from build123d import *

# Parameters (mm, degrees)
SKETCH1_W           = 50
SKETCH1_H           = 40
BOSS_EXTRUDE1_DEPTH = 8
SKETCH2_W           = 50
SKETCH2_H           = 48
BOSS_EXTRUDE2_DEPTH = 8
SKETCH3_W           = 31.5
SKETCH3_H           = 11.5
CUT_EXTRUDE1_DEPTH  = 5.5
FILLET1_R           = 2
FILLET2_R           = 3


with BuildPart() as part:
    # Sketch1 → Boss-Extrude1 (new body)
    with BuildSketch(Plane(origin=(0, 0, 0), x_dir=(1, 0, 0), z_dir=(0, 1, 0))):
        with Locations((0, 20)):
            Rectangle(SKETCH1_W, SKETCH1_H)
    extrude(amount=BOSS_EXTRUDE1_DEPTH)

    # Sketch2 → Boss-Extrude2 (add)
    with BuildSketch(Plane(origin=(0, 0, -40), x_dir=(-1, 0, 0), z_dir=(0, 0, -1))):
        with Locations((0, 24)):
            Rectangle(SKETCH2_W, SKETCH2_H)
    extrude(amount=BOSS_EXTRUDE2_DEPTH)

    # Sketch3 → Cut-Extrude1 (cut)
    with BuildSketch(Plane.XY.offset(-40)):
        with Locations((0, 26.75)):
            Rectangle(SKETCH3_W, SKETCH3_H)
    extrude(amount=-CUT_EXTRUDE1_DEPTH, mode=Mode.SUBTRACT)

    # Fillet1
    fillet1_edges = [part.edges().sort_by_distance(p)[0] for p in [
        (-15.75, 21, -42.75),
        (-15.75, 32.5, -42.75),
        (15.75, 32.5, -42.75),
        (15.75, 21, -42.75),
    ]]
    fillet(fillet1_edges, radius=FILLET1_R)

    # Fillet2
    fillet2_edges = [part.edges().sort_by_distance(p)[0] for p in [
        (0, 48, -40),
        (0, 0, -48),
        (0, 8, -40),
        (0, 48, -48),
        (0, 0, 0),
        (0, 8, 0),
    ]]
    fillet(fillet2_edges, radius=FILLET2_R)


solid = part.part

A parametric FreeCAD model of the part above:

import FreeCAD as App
import Part
import Sketcher

V = App.Vector


def edges_at(feature, points):
    """Names of the edges that pass closest to the given points."""
    edges = feature.Shape.Edges
    near = lambda p: min(range(len(edges)), key=lambda i: edges[i].distToShape(Part.Vertex(*p))[0])
    return sorted({f"Edge{near(p) + 1}" for p in points})

doc = App.newDocument("Part")
params = doc.addObject("Spreadsheet::Sheet", "Params")
for row, (alias, value) in enumerate([
    ("sketch1_width", "50 mm"),
    ("sketch1_height", "40 mm"),
    ("pad1_length", "8 mm"),
    ("sketch2_width", "50 mm"),
    ("sketch2_height", "48 mm"),
    ("pad2_length", "8 mm"),
    ("sketch3_width", "31.5 mm"),
    ("sketch3_height", "11.5 mm"),
    ("pocket1_length", "5.5 mm"),
    ("fillet_radius", "2 mm"),
    ("fillet2_radius", "3 mm"),
], start=1):
    params.set(f"A{row}", alias)
    params.set(f"B{row}", "=" + value)
    params.setAlias(f"B{row}", alias)

body = doc.addObject("PartDesign::Body", "Body")

# Sketch on XZ plane
sketch1 = body.newObject("Sketcher::SketchObject", "Sketch")
sketch1.AttachmentSupport = (doc.getObject("XZ_Plane"), [""])
sketch1.MapMode = "FlatFace"
sketch1.addGeometry([
    Part.LineSegment(V(-25, -40, 0), V(-25, 0, 0)),
    Part.LineSegment(V(-25, 0, 0), V(25, 0, 0)),
    Part.LineSegment(V(25, 0, 0), V(25, -40, 0)),
    Part.LineSegment(V(25, -40, 0), V(-25, -40, 0)),
], False)
sketch1.addConstraint([
    Sketcher.Constraint("Coincident", 0, 2, 1, 1),
    Sketcher.Constraint("Coincident", 1, 2, 2, 1),
    Sketcher.Constraint("Coincident", 2, 2, 3, 1),
    Sketcher.Constraint("Coincident", 3, 2, 0, 1),
    Sketcher.Constraint("Vertical", 0),
    Sketcher.Constraint("Horizontal", 1),
    Sketcher.Constraint("Vertical", 2),
    Sketcher.Constraint("Horizontal", 3),
    Sketcher.Constraint("Symmetric", 0, 2, 1, 2, -1, 1),
    Sketcher.Constraint("DistanceX", 1, 1, 1, 2, 50.0),
    Sketcher.Constraint("DistanceY", 0, 1, 0, 2, 40.0),
])
sketch1.setExpression("Constraints[9]", "Params.sketch1_width")
sketch1.setExpression("Constraints[10]", "Params.sketch1_height")
pad1 = body.newObject("PartDesign::Pad", "Pad")
pad1.Profile = sketch1
pad1.setExpression("Length", "Params.pad1_length")
pad1.Reversed = True

# Sketch on XY plane
sketch2 = body.newObject("Sketcher::SketchObject", "Sketch001")
sketch2.AttachmentSupport = (doc.getObject("XY_Plane"), [""])
sketch2.MapMode = "FlatFace"
sketch2.AttachmentOffset = App.Placement(V(0, 0, -40), App.Rotation())
sketch2.addGeometry([
    Part.LineSegment(V(25, 48, 0), V(25, 0, 0)),
    Part.LineSegment(V(25, 0, 0), V(-25, 0, 0)),
    Part.LineSegment(V(-25, 0, 0), V(-25, 48, 0)),
    Part.LineSegment(V(-25, 48, 0), V(25, 48, 0)),
], False)
sketch2.addConstraint([
    Sketcher.Constraint("Coincident", 0, 2, 1, 1),
    Sketcher.Constraint("Coincident", 1, 2, 2, 1),
    Sketcher.Constraint("Coincident", 2, 2, 3, 1),
    Sketcher.Constraint("Coincident", 3, 2, 0, 1),
    Sketcher.Constraint("Vertical", 0),
    Sketcher.Constraint("Horizontal", 1),
    Sketcher.Constraint("Vertical", 2),
    Sketcher.Constraint("Horizontal", 3),
    Sketcher.Constraint("Symmetric", 0, 2, 1, 2, -1, 1),
    Sketcher.Constraint("DistanceX", 1, 2, 1, 1, 50.0),
    Sketcher.Constraint("DistanceY", 0, 2, 0, 1, 48.0),
])
sketch2.setExpression("Constraints[9]", "Params.sketch2_width")
sketch2.setExpression("Constraints[10]", "Params.sketch2_height")
pad2 = body.newObject("PartDesign::Pad", "Pad001")
pad2.Profile = sketch2
pad2.setExpression("Length", "Params.pad2_length")
pad2.Reversed = True

# Sketch on XY plane
sketch3 = body.newObject("Sketcher::SketchObject", "Sketch002")
sketch3.AttachmentSupport = (doc.getObject("XY_Plane"), [""])
sketch3.MapMode = "FlatFace"
sketch3.AttachmentOffset = App.Placement(V(0, 0, -40), App.Rotation())
sketch3.addGeometry([
    Part.LineSegment(V(-15.75, 32.5, 0), V(-15.75, 21, 0)),
    Part.LineSegment(V(-15.75, 21, 0), V(15.75, 21, 0)),
    Part.LineSegment(V(15.75, 21, 0), V(15.75, 32.5, 0)),
    Part.LineSegment(V(15.75, 32.5, 0), V(-15.75, 32.5, 0)),
], False)
sketch3.addConstraint([
    Sketcher.Constraint("Coincident", 0, 2, 1, 1),
    Sketcher.Constraint("Coincident", 1, 2, 2, 1),
    Sketcher.Constraint("Coincident", 2, 2, 3, 1),
    Sketcher.Constraint("Coincident", 3, 2, 0, 1),
    Sketcher.Constraint("Vertical", 0),
    Sketcher.Constraint("Horizontal", 1),
    Sketcher.Constraint("Vertical", 2),
    Sketcher.Constraint("Horizontal", 3),
    Sketcher.Constraint("DistanceX", 1, 1, 1, 2, 31.5),
    Sketcher.Constraint("DistanceY", 0, 2, 0, 1, 11.5),
    Sketcher.Constraint("DistanceY", -1, 1, 0, 2, 21.0),
    Sketcher.Constraint("DistanceX", 0, 2, -1, 1, 15.75),
])
sketch3.setExpression("Constraints[8]", "Params.sketch3_width")
sketch3.setExpression("Constraints[9]", "Params.sketch3_height")
pocket1 = body.newObject("PartDesign::Pocket", "Pocket")
pocket1.Profile = sketch3
pocket1.setExpression("Length", "Params.pocket1_length")
doc.recompute()

fillet = body.newObject("PartDesign::Fillet", "Fillet")
fillet.Base = (pocket1, edges_at(pocket1, [
    (-15.75, 21, -42.75),
    (-15.75, 32.5, -42.75),
    (15.75, 32.5, -42.75),
    (15.75, 21, -42.75),
]))
fillet.setExpression("Radius", "Params.fillet_radius")
doc.recompute()

fillet2 = body.newObject("PartDesign::Fillet", "Fillet001")
fillet2.Base = (fillet, edges_at(fillet, [
    (0, 48, -40),
    (0, 0, -48),
    (0, 8, -40),
    (0, 48, -48),
    (0, 0, 0),
    (0, 8, 0),
]))
fillet2.setExpression("Radius", "Params.fillet2_radius")

doc.recompute()
